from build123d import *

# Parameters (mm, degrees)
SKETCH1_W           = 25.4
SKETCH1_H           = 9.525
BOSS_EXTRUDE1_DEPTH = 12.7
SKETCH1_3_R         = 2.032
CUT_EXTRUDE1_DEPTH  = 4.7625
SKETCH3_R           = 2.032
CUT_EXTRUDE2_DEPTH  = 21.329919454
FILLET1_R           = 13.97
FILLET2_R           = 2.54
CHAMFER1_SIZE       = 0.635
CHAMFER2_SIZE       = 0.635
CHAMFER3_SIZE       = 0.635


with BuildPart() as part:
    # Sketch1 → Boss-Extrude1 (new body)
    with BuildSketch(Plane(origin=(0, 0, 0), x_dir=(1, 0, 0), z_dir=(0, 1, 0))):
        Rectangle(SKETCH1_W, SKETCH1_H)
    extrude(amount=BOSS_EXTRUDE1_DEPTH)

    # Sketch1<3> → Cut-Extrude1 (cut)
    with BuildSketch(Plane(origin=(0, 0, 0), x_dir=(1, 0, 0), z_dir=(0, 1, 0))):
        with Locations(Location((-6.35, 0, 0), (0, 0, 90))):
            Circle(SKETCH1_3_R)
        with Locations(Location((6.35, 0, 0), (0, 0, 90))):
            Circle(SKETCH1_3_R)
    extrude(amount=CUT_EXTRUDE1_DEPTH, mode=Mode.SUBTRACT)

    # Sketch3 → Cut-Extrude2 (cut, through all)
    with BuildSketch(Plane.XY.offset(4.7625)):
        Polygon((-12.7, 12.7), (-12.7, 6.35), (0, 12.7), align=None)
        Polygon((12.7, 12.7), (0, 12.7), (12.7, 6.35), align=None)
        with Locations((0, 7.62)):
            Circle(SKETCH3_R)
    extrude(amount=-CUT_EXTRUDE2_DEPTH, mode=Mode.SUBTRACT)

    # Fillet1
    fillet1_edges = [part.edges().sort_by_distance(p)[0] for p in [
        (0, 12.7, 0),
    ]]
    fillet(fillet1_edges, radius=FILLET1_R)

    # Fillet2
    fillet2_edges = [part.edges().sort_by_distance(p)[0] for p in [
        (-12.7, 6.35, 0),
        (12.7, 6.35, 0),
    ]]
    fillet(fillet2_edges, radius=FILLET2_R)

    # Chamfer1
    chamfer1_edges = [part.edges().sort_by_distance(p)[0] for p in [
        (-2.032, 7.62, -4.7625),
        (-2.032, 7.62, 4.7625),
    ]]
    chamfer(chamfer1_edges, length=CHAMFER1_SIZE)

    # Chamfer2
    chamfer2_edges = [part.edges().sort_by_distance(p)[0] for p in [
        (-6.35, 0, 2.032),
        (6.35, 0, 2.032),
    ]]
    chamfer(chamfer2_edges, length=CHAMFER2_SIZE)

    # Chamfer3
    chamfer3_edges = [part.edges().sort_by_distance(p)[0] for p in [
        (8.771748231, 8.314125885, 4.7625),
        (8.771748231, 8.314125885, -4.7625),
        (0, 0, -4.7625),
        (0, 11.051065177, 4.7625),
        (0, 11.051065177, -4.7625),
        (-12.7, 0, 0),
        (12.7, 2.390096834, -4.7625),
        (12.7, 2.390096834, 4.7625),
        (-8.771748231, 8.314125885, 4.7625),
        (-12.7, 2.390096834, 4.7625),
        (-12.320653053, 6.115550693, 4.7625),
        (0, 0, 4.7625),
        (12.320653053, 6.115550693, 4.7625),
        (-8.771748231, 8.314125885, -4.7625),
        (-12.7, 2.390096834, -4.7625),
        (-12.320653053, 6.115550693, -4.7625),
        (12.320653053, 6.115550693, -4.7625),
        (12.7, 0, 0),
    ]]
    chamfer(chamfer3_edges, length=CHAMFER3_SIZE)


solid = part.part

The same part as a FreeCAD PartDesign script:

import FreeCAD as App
import Part
import Sketcher
Q = App.Units.Quantity


def edges_at(feature, points):
    """Names of the edges that pass closest to the given points."""
    edges = feature.Shape.Edges
    near = lambda p: min(range(len(edges)), key=lambda i: edges[i].distToShape(Part.Vertex(*p))[0])
    return sorted({f"Edge{near(p) + 1}" for p in points})


def add_polygon(sketch, points):
    """Adds a closed chain of lines whose ends are joined by coincident constraints."""
    first, n = sketch.GeometryCount, len(points)
    for a, b in zip(points, points[1:] + points[:1]):
        sketch.addGeometry(Part.LineSegment(App.Vector(*a, 0), App.Vector(*b, 0)), False)
    for i in range(n):
        sketch.addConstraint(Sketcher.Constraint("Coincident", first + i, 2, first + (i + 1) % n, 1))

doc = App.newDocument("Part")
body = doc.addObject("PartDesign::Body", "Body")

sketch1 = body.newObject("Sketcher::SketchObject", "Sketch")
sketch1.AttachmentSupport = (doc.getObject("XZ_Plane"), [""])
sketch1.MapMode = "FlatFace"
add_polygon(sketch1, [(-13, -5), (-13, 5), (13, 5), (13, -5)])
sketch1.addConstraint([
    Sketcher.Constraint("Vertical", 0),
    Sketcher.Constraint("Horizontal", 1),
    Sketcher.Constraint("Vertical", 2),
    Sketcher.Constraint("Horizontal", 3),
    Sketcher.Constraint("Symmetric", 0, 2, 2, 2, -1, 1),
    Sketcher.Constraint("DistanceX", 1, 1, 1, 2, Q("1 in")),
    Sketcher.Constraint("DistanceY", 0, 1, 0, 2, Q("0.375 in")),
])
pad1 = body.newObject("PartDesign::Pad", "Pad")
pad1.Profile = sketch1
pad1.Length = Q("0.5 in")
pad1.Reversed = True

sketch2 = body.newObject("Sketcher::SketchObject", "Sketch001")
sketch2.AttachmentSupport = (doc.getObject("XZ_Plane"), [""])
sketch2.MapMode = "FlatFace"
sketch2.addGeometry([
    Part.Circle(App.Vector(-6.3, 0, 0), App.Vector(0, 0, 1), 2),
    Part.Circle(App.Vector(6.3, 0, 0), App.Vector(0, 0, 1), 2),
], False)
sketch2.addConstraint([
    Sketcher.Constraint("Equal", 0, 1),
    Sketcher.Constraint("Symmetric", 0, 3, 1, 3, -1, 1),
    Sketcher.Constraint("PointOnObject", 0, 3, -1),
    Sketcher.Constraint("Diameter", 0, Q("0.16 in")),
    Sketcher.Constraint("DistanceX", 0, 3, 1, 3, Q("0.5 in")),
])
pocket1 = body.newObject("PartDesign::Pocket", "Pocket")
pocket1.Profile = sketch2
pocket1.Length = Q("0.1875 in")

sketch3 = body.newObject("Sketcher::SketchObject", "Sketch002")
sketch3.AttachmentSupport = (doc.getObject("XY_Plane"), [""])
sketch3.MapMode = "FlatFace"
sketch3.AttachmentOffset = App.Placement(App.Vector(0, 0, 0.1875 * 25.4), App.Rotation())
add_polygon(sketch3, [(-12.7, 12.7), (-12.7, 6.3), (0, 12.7)])
add_polygon(sketch3, [(12.7, 12.7), (0, 12.7), (12.7, 6.3)])
sketch3.addGeometry(Part.Circle(App.Vector(0, 7.6, 0), App.Vector(0, 0, 1), 2), False)
sketch3.addConstraint([
    Sketcher.Constraint("Vertical", 0),
    Sketcher.Constraint("Horizontal", 2),
    Sketcher.Constraint("Horizontal", 3),
    Sketcher.Constraint("Vertical", 5),
    Sketcher.Constraint("Coincident", 3, 2, 1, 2),
    Sketcher.Constraint("Symmetric", 0, 2, 4, 2, -2),
    Sketcher.Constraint("PointOnObject", 6, 3, -2),
    Sketcher.Constraint("PointOnObject", 1, 2, -2),
    Sketcher.Constraint("Diameter", 6, Q("0.16 in")),
    Sketcher.Constraint("DistanceX", 2, 2, 2, 1, Q("0.5 in")),
    Sketcher.Constraint("DistanceY", 0, 2, 0, 1, Q("0.25 in")),
    Sketcher.Constraint("DistanceY", -1, 1, 6, 3, Q("0.3 in")),
    Sketcher.Constraint("DistanceY", -1, 1, 1, 2, Q("0.5 in")),
])
pocket2 = body.newObject("PartDesign::Pocket", "Pocket001")
pocket2.Profile = sketch3
pocket2.Type = "ThroughAll"
doc.recompute()

fillet = body.newObject("PartDesign::Fillet", "Fillet")
fillet.Base = (pocket2, edges_at(pocket2, [(0, 12.7, 0)]))
fillet.Radius = Q("0.55 in")
doc.recompute()

fillet2 = body.newObject("PartDesign::Fillet", "Fillet001")
fillet2.Base = (fillet, edges_at(fillet, [(-12.7, 6.35, 0), (12.7, 6.35, 0)]))
fillet2.Radius = Q("0.1 in")
doc.recompute()

chamfer = body.newObject("PartDesign::Chamfer", "Chamfer")
chamfer.Base = (fillet2, edges_at(fillet2, [(-2.032, 7.62, -4.763), (-2.032, 7.62, 4.763)]))
chamfer.Size = Q("0.025 in")
doc.recompute()

chamfer2 = body.newObject("PartDesign::Chamfer", "Chamfer001")
chamfer2.Base = (chamfer, edges_at(chamfer, [(-6.35, 0, 2.032), (6.35, 0, 2.032)]))
chamfer2.Size = Q("0.025 in")
doc.recompute()

chamfer3 = body.newObject("PartDesign::Chamfer", "Chamfer002")
chamfer3.Base = (chamfer2, edges_at(chamfer2, [
    (8.772, 8.314, 4.763),
    (8.772, 8.314, -4.763),
    (0, 0, -4.763),
    (0, 11.051, 4.763),
    (0, 11.051, -4.763),
    (-12.7, 0, 0),
    (12.7, 2.39, -4.763),
    (12.7, 2.39, 4.763),
    (-8.772, 8.314, 4.763),
    (-12.7, 2.39, 4.763),
    (-12.321, 6.116, 4.763),
    (0, 0, 4.763),
    (12.321, 6.116, 4.763),
    (-8.772, 8.314, -4.763),
    (-12.7, 2.39, -4.763),
    (-12.321, 6.116, -4.763),
    (12.321, 6.116, -4.763),
    (12.7, 0, 0),
]))
chamfer3.Size = Q("0.025 in")

doc.recompute()
